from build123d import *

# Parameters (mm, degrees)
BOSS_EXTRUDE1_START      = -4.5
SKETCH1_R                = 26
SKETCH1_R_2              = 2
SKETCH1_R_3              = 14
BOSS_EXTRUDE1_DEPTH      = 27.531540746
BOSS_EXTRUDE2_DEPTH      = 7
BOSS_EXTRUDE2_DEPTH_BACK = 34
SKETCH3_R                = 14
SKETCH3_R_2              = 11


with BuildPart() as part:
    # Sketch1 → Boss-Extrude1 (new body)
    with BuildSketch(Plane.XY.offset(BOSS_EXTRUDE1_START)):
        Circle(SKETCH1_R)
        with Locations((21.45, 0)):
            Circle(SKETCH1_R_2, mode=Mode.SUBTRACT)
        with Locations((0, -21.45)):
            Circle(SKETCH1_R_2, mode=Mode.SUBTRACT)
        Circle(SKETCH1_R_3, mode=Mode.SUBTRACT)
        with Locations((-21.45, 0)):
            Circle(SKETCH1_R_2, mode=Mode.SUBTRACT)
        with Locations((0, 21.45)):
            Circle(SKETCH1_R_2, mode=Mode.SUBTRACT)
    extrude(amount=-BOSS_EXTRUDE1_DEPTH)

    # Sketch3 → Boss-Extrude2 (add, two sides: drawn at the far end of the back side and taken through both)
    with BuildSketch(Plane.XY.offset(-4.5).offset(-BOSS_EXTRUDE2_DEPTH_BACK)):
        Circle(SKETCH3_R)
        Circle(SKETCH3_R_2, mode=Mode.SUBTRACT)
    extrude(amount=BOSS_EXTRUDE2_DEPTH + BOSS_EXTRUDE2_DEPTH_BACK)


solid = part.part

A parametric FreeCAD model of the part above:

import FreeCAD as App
import Part
import Sketcher
from FreeCAD import Vector

doc = App.newDocument("Part")
body = doc.addObject("PartDesign::Body", "Body")

sketch1 = body.newObject("Sketcher::SketchObject", "Sketch")
sketch1.AttachmentSupport = (doc.getObject("XY_Plane"), [""])
sketch1.MapMode = "FlatFace"
sketch1.AttachmentOffset = App.Placement(Vector(0, 0, -4.5), App.Rotation())
sketch1.addGeometry(Part.Circle(Vector(0, 0, 0), Vector(0, 0, 1), 26), False)
sketch1.addGeometry(Part.Circle(Vector(0, -21.4, 0), Vector(0, 0, 1), 2), False)
sketch1.addGeometry(Part.Circle(Vector(-21.4, 0, 0), Vector(0, 0, 1), 2), False)
sketch1.addGeometry(Part.Circle(Vector(0, 0, 0), Vector(0, 0, 1), 14), False)
sketch1.addGeometry(Part.Circle(Vector(21.4, 0, 0), Vector(0, 0, 1), 2), False)
sketch1.addGeometry(Part.Circle(Vector(0, 21.4, 0), Vector(0, 0, 1), 2), False)
sketch1.addConstraint(Sketcher.Constraint("Coincident", 0, 3, -1, 1))
sketch1.addConstraint(Sketcher.Constraint("Coincident", 3, 3, -1, 1))
sketch1.addConstraint(Sketcher.Constraint("Equal", 1, 2))
sketch1.addConstraint(Sketcher.Constraint("Equal", 2, 4))
sketch1.addConstraint(Sketcher.Constraint("Equal", 4, 5))
sketch1.addConstraint(Sketcher.Constraint("Symmetric", 2, 3, 4, 3, -1, 1))
sketch1.addConstraint(Sketcher.Constraint("Symmetric", 1, 3, 5, 3, -1, 1))
sketch1.addConstraint(Sketcher.Constraint("PointOnObject", 1, 3, -2))
sketch1.addConstraint(Sketcher.Constraint("PointOnObject", 2, 3, -1))
sketch1.addConstraint(Sketcher.Constraint("Diameter", 0, 52.0))
sketch1.addConstraint(Sketcher.Constraint("Diameter", 1, 4.0))
sketch1.addConstraint(Sketcher.Constraint("Diameter", 3, 28.0))
sketch1.addConstraint(Sketcher.Constraint("DistanceX", 2, 3, 4, 3, 42.9))
sketch1.addConstraint(Sketcher.Constraint("DistanceY", 1, 3, 5, 3, 42.9))
pad1 = body.newObject("PartDesign::Pad", "Pad")
pad1.Profile = sketch1
pad1.Length = 27.531541
pad1.Reversed = True

sketch2 = body.newObject("Sketcher::SketchObject", "Sketch001")
sketch2.AttachmentSupport = (doc.getObject("XY_Plane"), [""])
sketch2.MapMode = "FlatFace"
sketch2.AttachmentOffset = App.Placement(Vector(0, 0, -4.5), App.Rotation())
sketch2.addGeometry(Part.Circle(Vector(0, 0, 0), Vector(0, 0, 1), 14), False)
sketch2.addGeometry(Part.Circle(Vector(0, 0, 0), Vector(0, 0, 1), 11), False)
sketch2.addConstraint(Sketcher.Constraint("Coincident", 0, 3, -1, 1))
sketch2.addConstraint(Sketcher.Constraint("Coincident", 1, 3, -1, 1))
sketch2.addConstraint(Sketcher.Constraint("Diameter", 0, 28.0))
sketch2.addConstraint(Sketcher.Constraint("Diameter", 1, 22.0))
pad2 = body.newObject("PartDesign::Pad", "Pad001")
pad2.Profile = sketch2
pad2.Type = "TwoLengths"
pad2.Length = 7
pad2.Length2 = 34

doc.recompute()
